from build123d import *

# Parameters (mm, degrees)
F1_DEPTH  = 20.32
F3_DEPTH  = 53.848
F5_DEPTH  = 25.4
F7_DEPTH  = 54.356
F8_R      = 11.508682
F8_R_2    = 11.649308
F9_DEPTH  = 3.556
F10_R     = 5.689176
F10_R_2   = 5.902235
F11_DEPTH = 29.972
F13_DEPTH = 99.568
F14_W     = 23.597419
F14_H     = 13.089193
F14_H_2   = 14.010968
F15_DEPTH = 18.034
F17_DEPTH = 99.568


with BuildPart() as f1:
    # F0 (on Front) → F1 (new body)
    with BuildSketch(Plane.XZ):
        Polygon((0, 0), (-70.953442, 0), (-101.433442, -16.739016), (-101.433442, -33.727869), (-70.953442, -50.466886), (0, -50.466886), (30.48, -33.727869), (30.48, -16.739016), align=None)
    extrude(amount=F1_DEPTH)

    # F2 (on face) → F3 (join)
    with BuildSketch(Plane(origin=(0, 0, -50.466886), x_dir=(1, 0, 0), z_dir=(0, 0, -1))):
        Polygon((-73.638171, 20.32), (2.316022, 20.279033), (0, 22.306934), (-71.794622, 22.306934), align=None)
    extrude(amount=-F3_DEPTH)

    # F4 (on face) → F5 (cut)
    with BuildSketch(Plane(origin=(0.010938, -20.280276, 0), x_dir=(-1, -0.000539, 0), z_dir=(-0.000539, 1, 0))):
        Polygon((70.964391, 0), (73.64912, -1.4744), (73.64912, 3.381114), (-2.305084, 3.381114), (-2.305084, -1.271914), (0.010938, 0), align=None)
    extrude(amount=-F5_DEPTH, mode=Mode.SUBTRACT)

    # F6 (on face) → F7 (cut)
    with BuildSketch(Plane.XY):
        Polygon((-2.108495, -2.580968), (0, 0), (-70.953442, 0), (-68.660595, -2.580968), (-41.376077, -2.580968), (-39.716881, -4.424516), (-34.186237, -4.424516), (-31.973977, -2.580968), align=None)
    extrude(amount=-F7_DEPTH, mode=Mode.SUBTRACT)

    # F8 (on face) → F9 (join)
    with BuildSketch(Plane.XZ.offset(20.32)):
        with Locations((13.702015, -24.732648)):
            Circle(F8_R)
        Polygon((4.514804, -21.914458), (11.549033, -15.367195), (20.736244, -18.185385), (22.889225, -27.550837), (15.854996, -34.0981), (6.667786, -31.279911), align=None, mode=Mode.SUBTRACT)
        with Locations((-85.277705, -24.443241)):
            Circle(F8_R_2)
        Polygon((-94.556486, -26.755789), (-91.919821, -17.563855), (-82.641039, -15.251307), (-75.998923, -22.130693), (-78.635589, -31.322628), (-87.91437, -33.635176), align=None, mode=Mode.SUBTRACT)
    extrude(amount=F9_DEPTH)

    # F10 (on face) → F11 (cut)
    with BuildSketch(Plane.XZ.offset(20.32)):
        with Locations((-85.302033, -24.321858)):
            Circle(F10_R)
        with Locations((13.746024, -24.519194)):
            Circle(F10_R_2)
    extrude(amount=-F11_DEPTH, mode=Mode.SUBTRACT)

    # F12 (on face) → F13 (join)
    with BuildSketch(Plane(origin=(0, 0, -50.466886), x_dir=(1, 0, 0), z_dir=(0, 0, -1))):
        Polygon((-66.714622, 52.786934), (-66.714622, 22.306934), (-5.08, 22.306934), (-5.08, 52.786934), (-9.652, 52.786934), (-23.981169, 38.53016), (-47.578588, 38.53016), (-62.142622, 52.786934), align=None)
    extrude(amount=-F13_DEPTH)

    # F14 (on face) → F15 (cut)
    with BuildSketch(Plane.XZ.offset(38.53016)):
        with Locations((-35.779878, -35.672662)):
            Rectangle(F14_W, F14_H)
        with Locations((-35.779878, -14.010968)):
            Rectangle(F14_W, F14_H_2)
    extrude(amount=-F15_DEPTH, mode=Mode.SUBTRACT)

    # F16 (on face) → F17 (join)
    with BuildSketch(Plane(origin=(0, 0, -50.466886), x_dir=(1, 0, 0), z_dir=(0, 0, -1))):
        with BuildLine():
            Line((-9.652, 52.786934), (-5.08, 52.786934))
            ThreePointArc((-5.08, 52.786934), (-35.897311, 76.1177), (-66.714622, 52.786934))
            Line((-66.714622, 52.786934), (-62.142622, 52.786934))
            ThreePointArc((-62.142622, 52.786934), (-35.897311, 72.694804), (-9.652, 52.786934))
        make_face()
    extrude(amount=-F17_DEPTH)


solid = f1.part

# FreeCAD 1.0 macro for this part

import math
import FreeCAD as App
import Part
import Sketcher
Q = App.Units.Quantity

doc = App.newDocument("Part")
body = doc.addObject("PartDesign::Body", "Body")

# Sketch on XZ plane
sketch1 = body.newObject("Sketcher::SketchObject", "Sketch")
sketch1.AttachmentSupport = (doc.getObject("XZ_Plane"), [""])
sketch1.MapMode = "FlatFace"
sketch1.addGeometry([
    Part.LineSegment(App.Vector(0, 0, 0), App.Vector(-71, 0, 0)),  # 0
    Part.LineSegment(App.Vector(-71, 0, 0), App.Vector(-101, -17, 0)),  # 1
    Part.LineSegment(App.Vector(-101, -17, 0), App.Vector(-101, -34, 0)),  # 2
    Part.LineSegment(App.Vector(-101, -34, 0), App.Vector(-71, -50, 0)),  # 3
    Part.LineSegment(App.Vector(-71, -50, 0), App.Vector(0, -50, 0)),  # 4
    Part.LineSegment(App.Vector(0, -50, 0), App.Vector(30, -34, 0)),  # 5
    Part.LineSegment(App.Vector(30, -34, 0), App.Vector(30, -17, 0)),  # 6
    Part.LineSegment(App.Vector(30, -17, 0), App.Vector(0, 0, 0)),  # 7
], False)
sketch1.addConstraint([
    Sketcher.Constraint("Coincident", 0, 2, 1, 1),
    Sketcher.Constraint("Coincident", 1, 2, 2, 1),
    Sketcher.Constraint("Coincident", 2, 2, 3, 1),
    Sketcher.Constraint("Coincident", 3, 2, 4, 1),
    Sketcher.Constraint("Coincident", 4, 2, 5, 1),
    Sketcher.Constraint("Coincident", 5, 2, 6, 1),
    Sketcher.Constraint("Coincident", 6, 2, 7, 1),
    Sketcher.Constraint("Coincident", 7, 2, 0, 1),
    Sketcher.Constraint("Horizontal", 0),
    Sketcher.Constraint("Vertical", 2),
    Sketcher.Constraint("Horizontal", 4),
    Sketcher.Constraint("Vertical", 6),
    Sketcher.Constraint("Coincident", 7, 2, -1, 1),
    Sketcher.Constraint("PointOnObject", 4, 2, -2),
    Sketcher.Constraint("Parallel", 1, 5),
    Sketcher.Constraint("Parallel", 3, 7),
    Sketcher.Constraint("Horizontal", 2, 2, 5, 2),
    Sketcher.Constraint("Horizontal", 1, 2, 6, 2),
    Sketcher.Constraint("Vertical", 0, 2, 3, 2),
    Sketcher.Constraint("DistanceX", -1, 1, 5, 2, Q("1.2 in")),
    Sketcher.Constraint("DistanceX", 0, 2, 0, 1, 70.953442),
    Sketcher.Constraint("DistanceY", 2, 2, 2, 1, 16.988853),
    Sketcher.Constraint("DistanceY", 2, 2, -1, 1, 33.727869),
])
pad1 = body.newObject("PartDesign::Pad", "Pad")
pad1.Profile = sketch1
pad1.Length = Q("0.8 in")

# Sketch on XY plane
sketch2 = body.newObject("Sketcher::SketchObject", "Sketch001")
sketch2.AttachmentSupport = (doc.getObject("XY_Plane"), [""])
sketch2.MapMode = "FlatFace"
sketch2.AttachmentOffset = App.Placement(App.Vector(0, 0, -50.466886), App.Rotation())
sketch2.addGeometry([
    Part.LineSegment(App.Vector(-73.6, -20.3, 0), App.Vector(2.3, -20.3, 0)),
    Part.LineSegment(App.Vector(2.3, -20.3, 0), App.Vector(0, -22.3, 0)),
    Part.LineSegment(App.Vector(0, -22.3, 0), App.Vector(-71.8, -22.3, 0)),
    Part.LineSegment(App.Vector(-71.8, -22.3, 0), App.Vector(-73.6, -20.3, 0)),
], False)
sketch2.addConstraint([
    Sketcher.Constraint("Coincident", 0, 2, 1, 1),
    Sketcher.Constraint("Coincident", 1, 2, 2, 1),
    Sketcher.Constraint("Coincident", 2, 2, 3, 1),
    Sketcher.Constraint("Coincident", 3, 2, 0, 1),
    Sketcher.Constraint("Horizontal", 2),
    Sketcher.Constraint("PointOnObject", 1, 2, -2),
    Sketcher.Constraint("DistanceY", 3, 2, -1, 1, Q("0.8 in")),
    Sketcher.Constraint("DistanceY", 1, 2, 0, 2, 2.027901),
    Sketcher.Constraint("DistanceX", 2, 2, 2, 1, 71.794622),
    Sketcher.Constraint("DistanceX", -1, 1, 0, 2, 2.316022),
    Sketcher.Constraint("DistanceX", 3, 2, -1, 1, 73.638171),
    Sketcher.Constraint("Distance", 3, 2.710457),
])
pad2 = body.newObject("PartDesign::Pad", "Pad001")
pad2.Profile = sketch2
pad2.Length = Q("2.12 in")

# Sketch on an angled plane
sketch3 = body.newObject("Sketcher::SketchObject", "Sketch002")
sketch3.Placement = App.Placement(App.Vector(0.010938, -20.280276, 0), App.Rotation(App.Vector(-0.999999855, -0.000539, 0), App.Vector(0, 0, 1.000000001), App.Vector(-0.000539, 0.999999855, 0), "ZXY"))
sketch3.addGeometry([
    Part.LineSegment(App.Vector(71, 0, 0), App.Vector(73.6, -1.5, 0)),  # 0
    Part.LineSegment(App.Vector(73.6, -1.5, 0), App.Vector(73.6, 3.4, 0)),  # 1
    Part.LineSegment(App.Vector(73.6, 3.4, 0), App.Vector(-2.3, 3.4, 0)),  # 2
    Part.LineSegment(App.Vector(-2.3, 3.4, 0), App.Vector(-2.3, -1.3, 0)),  # 3
    Part.LineSegment(App.Vector(-2.3, -1.3, 0), App.Vector(0, 0, 0)),  # 4
    Part.LineSegment(App.Vector(0, 0, 0), App.Vector(71, 0, 0)),  # 5
], False)
sketch3.addConstraint([
    Sketcher.Constraint("Coincident", 0, 2, 1, 1),
    Sketcher.Constraint("Coincident", 1, 2, 2, 1),
    Sketcher.Constraint("Coincident", 2, 2, 3, 1),
    Sketcher.Constraint("Coincident", 3, 2, 4, 1),
    Sketcher.Constraint("Coincident", 4, 2, 5, 1),
    Sketcher.Constraint("Coincident", 5, 2, 0, 1),
    Sketcher.Constraint("Vertical", 1),
    Sketcher.Constraint("Horizontal", 2),
    Sketcher.Constraint("Vertical", 3),
    Sketcher.Constraint("Horizontal", 5),
    Sketcher.Constraint("PointOnObject", 4, 2, -1),
    Sketcher.Constraint("DistanceY", 3, 2, 3, 1, 4.653028),
    Sketcher.Constraint("DistanceY", 0, 2, -1, 1, 1.4744),
    Sketcher.Constraint("DistanceX", 2, 2, 2, 1, 75.954204),
    Sketcher.Constraint("DistanceX", 5, 1, 5, 2, 70.953453),
    Sketcher.Constraint("DistanceY", 1, 1, 1, 2, 4.855514),
    Sketcher.Constraint("DistanceX", -1, 1, 0, 2, 73.64912),
    Sketcher.Constraint("DistanceX", -1, 1, 5, 2, 70.964391),
])
pocket1 = body.newObject("PartDesign::Pocket", "Pocket")
pocket1.Profile = sketch3
pocket1.Length = Q("1 in")

# Sketch on XY plane
sketch4 = body.newObject("Sketcher::SketchObject", "Sketch003")
sketch4.AttachmentSupport = (doc.getObject("XY_Plane"), [""])
sketch4.MapMode = "FlatFace"
sketch4.addGeometry([
    Part.LineSegment(App.Vector(-2.1, -2.6, 0), App.Vector(0, 0, 0)),  # 0
    Part.LineSegment(App.Vector(0, 0, 0), App.Vector(-71, 0, 0)),  # 1
    Part.LineSegment(App.Vector(-71, 0, 0), App.Vector(-68.7, -2.6, 0)),  # 2
    Part.LineSegment(App.Vector(-68.7, -2.6, 0), App.Vector(-41.4, -2.6, 0)),  # 3
    Part.LineSegment(App.Vector(-41.4, -2.6, 0), App.Vector(-39.7, -4.4, 0)),  # 4
    Part.LineSegment(App.Vector(-39.7, -4.4, 0), App.Vector(-34.2, -4.4, 0)),  # 5
    Part.LineSegment(App.Vector(-34.2, -4.4, 0), App.Vector(-32, -2.6, 0)),  # 6
    Part.LineSegment(App.Vector(-32, -2.6, 0), App.Vector(-2.1, -2.6, 0)),  # 7
], False)
sketch4.addConstraint([
    Sketcher.Constraint("Coincident", 0, 2, 1, 1),
    Sketcher.Constraint("Coincident", 1, 2, 2, 1),
    Sketcher.Constraint("Coincident", 2, 2, 3, 1),
    Sketcher.Constraint("Coincident", 3, 2, 4, 1),
    Sketcher.Constraint("Coincident", 4, 2, 5, 1),
    Sketcher.Constraint("Coincident", 5, 2, 6, 1),
    Sketcher.Constraint("Coincident", 6, 2, 7, 1),
    Sketcher.Constraint("Coincident", 7, 2, 0, 1),
    Sketcher.Constraint("Horizontal", 1),
    Sketcher.Constraint("Horizontal", 3),
    Sketcher.Constraint("Horizontal", 5),
    Sketcher.Constraint("Horizontal", 7),
    Sketcher.Constraint("Coincident", 0, 2, -1, 1),
    Sketcher.Constraint("Horizontal", 3, 2, 6, 2),
    Sketcher.Constraint("DistanceX", 1, 2, 1, 1, 70.953442),
    Sketcher.Constraint("DistanceX", 7, 1, 7, 2, 29.865482),
    Sketcher.Constraint("DistanceX", 3, 2, 6, 2, 9.4021),
    Sketcher.Constraint("Distance", 0, 3.332739),
    Sketcher.Constraint("DistanceX", 3, 1, 3, 2, 27.284518),
    Sketcher.Constraint("DistanceX", 5, 1, 5, 2, 5.530644),
    Sketcher.Constraint("DistanceX", 4, 2, -1, 1, 39.716881),
    Sketcher.Constraint("DistanceX", 3, 2, 5, 2, 7.18984),
    Sketcher.Constraint("Distance", 4, 2.480242),
])
pocket2 = body.newObject("PartDesign::Pocket", "Pocket001")
pocket2.Profile = sketch4
pocket2.Length = Q("2.14 in")

# Sketch on XZ plane
sketch5 = body.newObject("Sketcher::SketchObject", "Sketch004")
sketch5.AttachmentSupport = (doc.getObject("XZ_Plane"), [""])
sketch5.MapMode = "FlatFace"
sketch5.AttachmentOffset = App.Placement(App.Vector(0, 0, 0.8 * 25.4), App.Rotation())
sketch5.addGeometry([
    Part.Circle(App.Vector(14, -25, 0), App.Vector(0, 0, 1), 12),  # 0
    Part.LineSegment(App.Vector(7, -31, 0), App.Vector(5, -22, 0)),  # 1
    Part.LineSegment(App.Vector(5, -22, 0), App.Vector(12, -15, 0)),  # 2
    Part.LineSegment(App.Vector(12, -15, 0), App.Vector(21, -18, 0)),  # 3
    Part.LineSegment(App.Vector(21, -18, 0), App.Vector(23, -28, 0)),  # 4
    Part.LineSegment(App.Vector(23, -28, 0), App.Vector(16, -34, 0)),  # 5
    Part.LineSegment(App.Vector(16, -34, 0), App.Vector(7, -31, 0)),  # 6
    Part.Circle(App.Vector(-85, -24, 0), App.Vector(0, 0, 1), 12),  # 7
    Part.LineSegment(App.Vector(-88, -34, 0), App.Vector(-95, -27, 0)),  # 8
    Part.LineSegment(App.Vector(-95, -27, 0), App.Vector(-92, -18, 0)),  # 9
    Part.LineSegment(App.Vector(-92, -18, 0), App.Vector(-83, -15, 0)),  # 10
    Part.LineSegment(App.Vector(-83, -15, 0), App.Vector(-76, -22, 0)),  # 11
    Part.LineSegment(App.Vector(-76, -22, 0), App.Vector(-79, -31, 0)),  # 12
    Part.LineSegment(App.Vector(-79, -31, 0), App.Vector(-88, -34, 0)),  # 13
], False)
sketch5.addConstraint([
    Sketcher.Constraint("Coincident", 1, 2, 2, 1),
    Sketcher.Constraint("Coincident", 2, 2, 3, 1),
    Sketcher.Constraint("Coincident", 3, 2, 4, 1),
    Sketcher.Constraint("Coincident", 4, 2, 5, 1),
    Sketcher.Constraint("Coincident", 5, 2, 6, 1),
    Sketcher.Constraint("Coincident", 6, 2, 1, 1),
    Sketcher.Constraint("Coincident", 8, 2, 9, 1),
    Sketcher.Constraint("Coincident", 9, 2, 10, 1),
    Sketcher.Constraint("Coincident", 10, 2, 11, 1),
    Sketcher.Constraint("Coincident", 11, 2, 12, 1),
    Sketcher.Constraint("Coincident", 12, 2, 13, 1),
    Sketcher.Constraint("Coincident", 13, 2, 8, 1),
    Sketcher.Constraint("Parallel", 1, 4),
    Sketcher.Constraint("Parallel", 2, 5),
    Sketcher.Constraint("Parallel", 3, 6),
    Sketcher.Constraint("Parallel", 8, 11),
    Sketcher.Constraint("Parallel", 9, 12),
    Sketcher.Constraint("Parallel", 10, 13),
    Sketcher.Constraint("Equal", 1, 2),
    Sketcher.Constraint("Equal", 2, 3),
    Sketcher.Constraint("Equal", 3, 4),
    Sketcher.Constraint("Equal", 8, 9),
    Sketcher.Constraint("Equal", 9, 10),
    Sketcher.Constraint("Equal", 10, 11),
    Sketcher.Constraint("Diameter", 0, 23.017364),
    Sketcher.Constraint("Diameter", 7, 23.298616),
    Sketcher.Constraint("DistanceY", 5, 2, -1, 1, 34.0981),
    Sketcher.Constraint("DistanceX", 8, 2, 0, 3, 108.258501),
    Sketcher.Constraint("Distance", 8, 9.562618),
    Sketcher.Constraint("DistanceY", 0, 3, -1, 1, 24.732648),
    Sketcher.Constraint("DistanceY", 7, 3, -1, 1, 24.443241),
    Sketcher.Constraint("DistanceY", 1, 2, -1, 1, 21.914458),
    Sketcher.Constraint("DistanceY", 6, 2, -1, 1, 31.279911),
    Sketcher.Constraint("DistanceY", 8, 2, -1, 1, 26.755789),
    Sketcher.Constraint("DistanceX", 9, 2, -1, 1, 91.919821),
    Sketcher.Constraint("DistanceX", 10, 2, -1, 1, 82.641039),
    Sketcher.Constraint("DistanceX", 12, 2, -1, 1, 78.635589),
    Sketcher.Constraint("DistanceY", 12, 2, -1, 1, 31.322628),
    Sketcher.Constraint("DistanceX", 7, 3, 0, 3, 98.97972),
    Sketcher.Constraint("DistanceX", 1, 2, 0, 3, 9.187211),
    Sketcher.Constraint("DistanceX", 1, 2, 2, 2, 7.034229),
    Sketcher.Constraint("DistanceX", 0, 3, 3, 2, 7.034229),
])
pad3 = body.newObject("PartDesign::Pad", "Pad002")
pad3.Profile = sketch5
pad3.Length = Q("0.14 in")

# Sketch on XZ plane
sketch6 = body.newObject("Sketcher::SketchObject", "Sketch005")
sketch6.AttachmentSupport = (doc.getObject("XZ_Plane"), [""])
sketch6.MapMode = "FlatFace"
sketch6.AttachmentOffset = App.Placement(App.Vector(0, 0, 0.8 * 25.4), App.Rotation())
sketch6.addGeometry([
    Part.Circle(App.Vector(-85, -24, 0), App.Vector(0, 0, 1), 6),
    Part.Circle(App.Vector(14, -25, 0), App.Vector(0, 0, 1), 6),
], False)
sketch6.addConstraint([
    Sketcher.Constraint("Diameter", 1, 11.80447),
    Sketcher.Constraint("Diameter", 0, 11.378352),
    Sketcher.Constraint("DistanceX", 0, 3, -1, 1, 85.302033),
    Sketcher.Constraint("DistanceY", 0, 3, -1, 1, 24.321858),
    Sketcher.Constraint("DistanceX", -1, 1, 1, 3, 13.746024),
    Sketcher.Constraint("DistanceY", 1, 3, -1, 1, 24.519194),
])
pocket3 = body.newObject("PartDesign::Pocket", "Pocket002")
pocket3.Profile = sketch6
pocket3.Length = Q("1.18 in")

# Sketch on XY plane
sketch7 = body.newObject("Sketcher::SketchObject", "Sketch006")
sketch7.AttachmentSupport = (doc.getObject("XY_Plane"), [""])
sketch7.MapMode = "FlatFace"
sketch7.AttachmentOffset = App.Placement(App.Vector(0, 0, -50.466886), App.Rotation())
sketch7.addGeometry([
    Part.LineSegment(App.Vector(-66.7, -52.8, 0), App.Vector(-66.7, -22.3, 0)),  # 0
    Part.LineSegment(App.Vector(-66.7, -22.3, 0), App.Vector(-5.1, -22.3, 0)),  # 1
    Part.LineSegment(App.Vector(-5.1, -22.3, 0), App.Vector(-5.1, -52.8, 0)),  # 2
    Part.LineSegment(App.Vector(-5.1, -52.8, 0), App.Vector(-9.7, -52.8, 0)),  # 3
    Part.LineSegment(App.Vector(-9.7, -52.8, 0), App.Vector(-24, -38.5, 0)),  # 4
    Part.LineSegment(App.Vector(-24, -38.5, 0), App.Vector(-47.6, -38.5, 0)),  # 5
    Part.LineSegment(App.Vector(-47.6, -38.5, 0), App.Vector(-62.1, -52.8, 0)),  # 6
    Part.LineSegment(App.Vector(-62.1, -52.8, 0), App.Vector(-66.7, -52.8, 0)),  # 7
], False)
sketch7.addConstraint([
    Sketcher.Constraint("Coincident", 0, 2, 1, 1),
    Sketcher.Constraint("Coincident", 1, 2, 2, 1),
    Sketcher.Constraint("Coincident", 2, 2, 3, 1),
    Sketcher.Constraint("Coincident", 3, 2, 4, 1),
    Sketcher.Constraint("Coincident", 4, 2, 5, 1),
    Sketcher.Constraint("Coincident", 5, 2, 6, 1),
    Sketcher.Constraint("Coincident", 6, 2, 7, 1),
    Sketcher.Constraint("Coincident", 7, 2, 0, 1),
    Sketcher.Constraint("Vertical", 0),
    Sketcher.Constraint("Horizontal", 1),
    Sketcher.Constraint("Vertical", 2),
    Sketcher.Constraint("Horizontal", 3),
    Sketcher.Constraint("Horizontal", 5),
    Sketcher.Constraint("Horizontal", 7),
    Sketcher.Constraint("Horizontal", 3, 2, 6, 2),
    Sketcher.Constraint("Equal", 3, 7),
    Sketcher.Constraint("DistanceY", 0, 1, 0, 2, Q("1.2 in")),
    Sketcher.Constraint("DistanceX", 3, 2, 3, 1, Q("0.18 in")),
    Sketcher.Constraint("DistanceX", 1, 2, -1, 1, Q("0.2 in")),
    Sketcher.Constraint("DistanceX", 5, 2, 5, 1, 23.597419),
    Sketcher.Constraint("Distance", 4, 20.213379),
    Sketcher.Constraint("DistanceX", 1, 1, 1, 2, 61.634622),
    Sketcher.Constraint("DistanceX", 4, 2, -1, 1, 23.981169),
    Sketcher.Constraint("DistanceY", 4, 2, -1, 1, 38.53016),
])
pad4 = body.newObject("PartDesign::Pad", "Pad003")
pad4.Profile = sketch7
pad4.Length = Q("3.92 in")

# Sketch on XZ plane
sketch8 = body.newObject("Sketcher::SketchObject", "Sketch007")
sketch8.AttachmentSupport = (doc.getObject("XZ_Plane"), [""])
sketch8.MapMode = "FlatFace"
sketch8.AttachmentOffset = App.Placement(App.Vector(0, 0, 38.53016), App.Rotation())
sketch8.addGeometry([
    Part.LineSegment(App.Vector(-48, -29, 0), App.Vector(-48, -42, 0)),  # 0
    Part.LineSegment(App.Vector(-48, -42, 0), App.Vector(-24, -42, 0)),  # 1
    Part.LineSegment(App.Vector(-24, -42, 0), App.Vector(-24, -29, 0)),  # 2
    Part.LineSegment(App.Vector(-24, -29, 0), App.Vector(-48, -29, 0)),  # 3
    Part.LineSegment(App.Vector(-48, -7, 0), App.Vector(-48, -21, 0)),  # 4
    Part.LineSegment(App.Vector(-48, -21, 0), App.Vector(-24, -21, 0)),  # 5
    Part.LineSegment(App.Vector(-24, -21, 0), App.Vector(-24, -7, 0)),  # 6
    Part.LineSegment(App.Vector(-24, -7, 0), App.Vector(-48, -7, 0)),  # 7
], False)
sketch8.addConstraint([
    Sketcher.Constraint("Coincident", 0, 2, 1, 1),
    Sketcher.Constraint("Coincident", 1, 2, 2, 1),
    Sketcher.Constraint("Coincident", 2, 2, 3, 1),
    Sketcher.Constraint("Coincident", 3, 2, 0, 1),
    Sketcher.Constraint("Coincident", 4, 2, 5, 1),
    Sketcher.Constraint("Coincident", 5, 2, 6, 1),
    Sketcher.Constraint("Coincident", 6, 2, 7, 1),
    Sketcher.Constraint("Coincident", 7, 2, 4, 1),
    Sketcher.Constraint("Vertical", 0),
    Sketcher.Constraint("Horizontal", 1),
    Sketcher.Constraint("Vertical", 2),
    Sketcher.Constraint("Horizontal", 3),
    Sketcher.Constraint("Vertical", 4),
    Sketcher.Constraint("Horizontal", 5),
    Sketcher.Constraint("Vertical", 6),
    Sketcher.Constraint("Horizontal", 7),
    Sketcher.Constraint("Vertical", 3, 2, 4, 2),
    Sketcher.Constraint("Vertical", 2, 2, 5, 2),
    Sketcher.Constraint("DistanceX", 1, 1, 1, 2, 23.597419),
    Sketcher.Constraint("DistanceY", 4, 2, 4, 1, 14.010968),
    Sketcher.Constraint("DistanceY", 0, 2, 0, 1, 13.089193),
    Sketcher.Constraint("DistanceY", 0, 2, -1, 1, 42.217258),
    Sketcher.Constraint("DistanceX", 1, 2, -1, 1, 23.981168),
    Sketcher.Constraint("DistanceY", 2, 2, 6, 2, 22.122582),
])
pocket4 = body.newObject("PartDesign::Pocket", "Pocket003")
pocket4.Profile = sketch8
pocket4.Length = Q("0.71 in")

# Sketch on XY plane
sketch9 = body.newObject("Sketcher::SketchObject", "Sketch008")
sketch9.AttachmentSupport = (doc.getObject("XY_Plane"), [""])
sketch9.MapMode = "FlatFace"
sketch9.AttachmentOffset = App.Placement(App.Vector(0, 0, -50.466886), App.Rotation())
sketch9.addGeometry([
    Part.LineSegment(App.Vector(-9.7, -52.8, 0), App.Vector(-5.1, -52.8, 0)),
    Part.ArcOfCircle(Part.Circle(App.Vector(-35.9, -44.1, 0), App.Vector(0, 0, 1), 32), math.radians(-164), math.radians(-16)),
    Part.LineSegment(App.Vector(-66.7, -52.8, 0), App.Vector(-62.1, -52.8, 0)),
    Part.ArcOfCircle(Part.Circle(App.Vector(-35.9, -45.4, 0), App.Vector(0, 0, 1), 27.3), math.radians(-164), math.radians(-16)),
], False)
sketch9.addConstraint([
    Sketcher.Constraint("Coincident", 0, 2, 1, 2),
    Sketcher.Constraint("Coincident", 1, 1, 2, 1),
    Sketcher.Constraint("Coincident", 2, 2, 3, 1),
    Sketcher.Constraint("Coincident", 3, 2, 0, 1),
    Sketcher.Constraint("Horizontal", 0),
    Sketcher.Constraint("Horizontal", 2),
    Sketcher.Constraint("Horizontal", 0, 2, 1, 1),
    Sketcher.Constraint("Vertical", 1, 3, 3, 3),
    Sketcher.Constraint("DistanceX", 0, 1, 0, 2, Q("0.18 in")),
    Sketcher.Constraint("DistanceX", 0, 2, -1, 1, Q("0.2 in")),
    Sketcher.Constraint("Radius", 1, 32.018479),
    Sketcher.Constraint("Radius", 3, 27.254037),
    Sketcher.Constraint("DistanceX", 1, 3, -1, 1, 35.897311),
    Sketcher.Constraint("DistanceY", 1, 3, -1, 1, 44.099221),
])
pad5 = body.newObject("PartDesign::Pad", "Pad004")
pad5.Profile = sketch9
pad5.Length = Q("3.92 in")

doc.recompute()
